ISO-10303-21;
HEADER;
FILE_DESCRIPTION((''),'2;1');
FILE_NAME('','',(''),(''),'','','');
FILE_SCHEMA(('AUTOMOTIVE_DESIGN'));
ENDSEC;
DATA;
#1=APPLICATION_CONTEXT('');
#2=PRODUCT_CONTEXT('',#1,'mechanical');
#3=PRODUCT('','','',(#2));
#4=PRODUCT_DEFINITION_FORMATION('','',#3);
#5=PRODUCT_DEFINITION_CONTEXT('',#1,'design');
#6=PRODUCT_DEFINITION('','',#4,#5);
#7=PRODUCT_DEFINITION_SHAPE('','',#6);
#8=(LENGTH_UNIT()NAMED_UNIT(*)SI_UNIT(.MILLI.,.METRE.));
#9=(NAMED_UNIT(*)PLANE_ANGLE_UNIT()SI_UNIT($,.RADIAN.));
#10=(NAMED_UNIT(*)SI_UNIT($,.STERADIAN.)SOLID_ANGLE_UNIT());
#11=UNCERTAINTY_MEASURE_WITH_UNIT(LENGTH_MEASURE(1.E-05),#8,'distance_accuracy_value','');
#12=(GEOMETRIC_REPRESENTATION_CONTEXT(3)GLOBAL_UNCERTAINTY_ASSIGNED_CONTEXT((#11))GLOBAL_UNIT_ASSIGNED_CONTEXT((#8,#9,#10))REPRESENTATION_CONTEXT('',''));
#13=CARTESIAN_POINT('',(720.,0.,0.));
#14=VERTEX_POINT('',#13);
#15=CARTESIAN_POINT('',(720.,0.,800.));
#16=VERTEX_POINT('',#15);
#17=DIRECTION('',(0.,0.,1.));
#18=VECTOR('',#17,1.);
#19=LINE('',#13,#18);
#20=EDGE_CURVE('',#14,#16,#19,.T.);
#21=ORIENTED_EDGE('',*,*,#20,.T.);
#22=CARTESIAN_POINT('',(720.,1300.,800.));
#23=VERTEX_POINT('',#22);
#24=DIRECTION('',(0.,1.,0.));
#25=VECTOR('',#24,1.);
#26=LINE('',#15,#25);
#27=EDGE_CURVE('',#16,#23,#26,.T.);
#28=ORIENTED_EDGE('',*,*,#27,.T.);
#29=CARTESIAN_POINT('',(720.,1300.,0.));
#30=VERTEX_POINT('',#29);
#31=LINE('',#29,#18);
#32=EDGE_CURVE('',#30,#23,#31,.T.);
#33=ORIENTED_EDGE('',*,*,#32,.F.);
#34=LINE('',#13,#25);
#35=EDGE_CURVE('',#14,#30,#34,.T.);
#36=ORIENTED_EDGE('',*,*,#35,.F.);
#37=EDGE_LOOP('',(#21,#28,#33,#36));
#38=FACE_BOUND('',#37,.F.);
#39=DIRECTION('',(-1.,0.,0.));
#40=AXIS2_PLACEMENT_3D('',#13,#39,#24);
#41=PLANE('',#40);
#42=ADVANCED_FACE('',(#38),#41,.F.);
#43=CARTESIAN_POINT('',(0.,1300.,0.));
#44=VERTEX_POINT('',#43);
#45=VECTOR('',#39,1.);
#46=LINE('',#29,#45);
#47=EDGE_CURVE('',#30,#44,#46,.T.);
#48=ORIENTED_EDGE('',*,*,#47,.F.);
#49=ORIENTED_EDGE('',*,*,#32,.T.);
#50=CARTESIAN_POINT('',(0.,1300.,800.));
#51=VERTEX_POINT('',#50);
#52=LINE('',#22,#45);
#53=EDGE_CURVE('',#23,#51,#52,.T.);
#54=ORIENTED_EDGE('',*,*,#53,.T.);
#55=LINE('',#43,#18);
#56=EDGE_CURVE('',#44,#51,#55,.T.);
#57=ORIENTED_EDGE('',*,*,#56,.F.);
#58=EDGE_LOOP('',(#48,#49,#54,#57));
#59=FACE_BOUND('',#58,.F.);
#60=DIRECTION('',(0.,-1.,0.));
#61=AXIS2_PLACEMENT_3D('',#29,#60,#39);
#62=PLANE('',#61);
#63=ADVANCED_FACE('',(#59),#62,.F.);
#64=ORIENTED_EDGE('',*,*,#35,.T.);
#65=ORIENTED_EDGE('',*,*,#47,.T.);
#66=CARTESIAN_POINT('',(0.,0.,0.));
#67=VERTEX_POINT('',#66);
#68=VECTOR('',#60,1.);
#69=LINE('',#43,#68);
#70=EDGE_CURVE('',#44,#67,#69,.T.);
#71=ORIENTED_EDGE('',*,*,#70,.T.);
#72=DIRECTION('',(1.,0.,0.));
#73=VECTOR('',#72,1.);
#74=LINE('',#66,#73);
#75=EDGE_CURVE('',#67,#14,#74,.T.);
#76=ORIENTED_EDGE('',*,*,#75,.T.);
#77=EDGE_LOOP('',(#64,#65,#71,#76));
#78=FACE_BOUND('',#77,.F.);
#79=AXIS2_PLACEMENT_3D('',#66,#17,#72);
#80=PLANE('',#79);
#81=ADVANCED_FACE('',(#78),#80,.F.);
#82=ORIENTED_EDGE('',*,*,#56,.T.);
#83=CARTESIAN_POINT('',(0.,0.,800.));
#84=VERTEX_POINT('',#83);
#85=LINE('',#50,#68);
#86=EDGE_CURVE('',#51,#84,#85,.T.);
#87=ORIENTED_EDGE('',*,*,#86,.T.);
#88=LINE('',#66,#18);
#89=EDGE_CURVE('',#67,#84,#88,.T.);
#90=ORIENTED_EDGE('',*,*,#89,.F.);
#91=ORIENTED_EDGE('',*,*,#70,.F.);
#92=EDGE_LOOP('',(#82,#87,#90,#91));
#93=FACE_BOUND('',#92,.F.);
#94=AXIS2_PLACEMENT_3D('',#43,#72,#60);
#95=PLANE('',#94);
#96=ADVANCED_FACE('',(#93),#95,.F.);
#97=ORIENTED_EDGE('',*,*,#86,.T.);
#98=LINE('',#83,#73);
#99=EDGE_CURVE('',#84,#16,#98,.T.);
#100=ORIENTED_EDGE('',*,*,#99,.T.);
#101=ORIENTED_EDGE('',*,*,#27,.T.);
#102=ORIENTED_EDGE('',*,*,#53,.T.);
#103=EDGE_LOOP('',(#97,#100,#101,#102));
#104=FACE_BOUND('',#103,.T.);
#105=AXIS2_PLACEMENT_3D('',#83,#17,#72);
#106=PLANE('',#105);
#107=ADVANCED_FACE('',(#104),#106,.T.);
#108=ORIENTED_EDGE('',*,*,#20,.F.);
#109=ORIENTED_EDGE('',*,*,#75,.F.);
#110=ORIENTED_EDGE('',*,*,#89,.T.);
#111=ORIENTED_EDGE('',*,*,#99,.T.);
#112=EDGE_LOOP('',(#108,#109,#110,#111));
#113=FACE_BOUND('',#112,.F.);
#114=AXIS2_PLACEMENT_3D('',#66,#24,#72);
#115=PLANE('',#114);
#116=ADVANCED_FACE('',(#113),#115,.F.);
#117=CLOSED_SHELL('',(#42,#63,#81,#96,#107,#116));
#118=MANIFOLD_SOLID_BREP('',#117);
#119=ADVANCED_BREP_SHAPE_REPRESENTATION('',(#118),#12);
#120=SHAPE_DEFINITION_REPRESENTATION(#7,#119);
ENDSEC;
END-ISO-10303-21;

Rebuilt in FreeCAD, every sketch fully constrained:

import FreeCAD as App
import Part
import Sketcher
Q = App.Units.Quantity

doc = App.newDocument("Part")
body = doc.addObject("PartDesign::Body", "Body")

# Sketch on XY plane
sketch1 = body.newObject("Sketcher::SketchObject", "Sketch")
sketch1.AttachmentSupport = (doc.getObject("XY_Plane"), [""])
sketch1.MapMode = "FlatFace"
sketch1.addGeometry(Part.LineSegment(App.Vector(0, 1300, 0), App.Vector(0, 0, 0)), False)
sketch1.addGeometry(Part.LineSegment(App.Vector(0, 0, 0), App.Vector(720, 0, 0)), False)
sketch1.addGeometry(Part.LineSegment(App.Vector(720, 0, 0), App.Vector(720, 1300, 0)), False)
sketch1.addGeometry(Part.LineSegment(App.Vector(720, 1300, 0), App.Vector(0, 1300, 0)), False)
sketch1.addConstraint(Sketcher.Constraint("Coincident", 0, 2, 1, 1))
sketch1.addConstraint(Sketcher.Constraint("Coincident", 1, 2, 2, 1))
sketch1.addConstraint(Sketcher.Constraint("Coincident", 2, 2, 3, 1))
sketch1.addConstraint(Sketcher.Constraint("Coincident", 3, 2, 0, 1))
sketch1.addConstraint(Sketcher.Constraint("Vertical", 0))
sketch1.addConstraint(Sketcher.Constraint("Horizontal", 1))
sketch1.addConstraint(Sketcher.Constraint("Vertical", 2))
sketch1.addConstraint(Sketcher.Constraint("Horizontal", 3))
sketch1.addConstraint(Sketcher.Constraint("Coincident", 0, 2, -1, 1))
sketch1.addConstraint(Sketcher.Constraint("DistanceX", 1, 1, 1, 2, Q("720 mm")))
sketch1.addConstraint(Sketcher.Constraint("DistanceY", 0, 2, 0, 1, Q("1300 mm")))
pad1 = body.newObject("PartDesign::Pad", "Pad")
pad1.Profile = sketch1
pad1.Length = 800

doc.recompute()
